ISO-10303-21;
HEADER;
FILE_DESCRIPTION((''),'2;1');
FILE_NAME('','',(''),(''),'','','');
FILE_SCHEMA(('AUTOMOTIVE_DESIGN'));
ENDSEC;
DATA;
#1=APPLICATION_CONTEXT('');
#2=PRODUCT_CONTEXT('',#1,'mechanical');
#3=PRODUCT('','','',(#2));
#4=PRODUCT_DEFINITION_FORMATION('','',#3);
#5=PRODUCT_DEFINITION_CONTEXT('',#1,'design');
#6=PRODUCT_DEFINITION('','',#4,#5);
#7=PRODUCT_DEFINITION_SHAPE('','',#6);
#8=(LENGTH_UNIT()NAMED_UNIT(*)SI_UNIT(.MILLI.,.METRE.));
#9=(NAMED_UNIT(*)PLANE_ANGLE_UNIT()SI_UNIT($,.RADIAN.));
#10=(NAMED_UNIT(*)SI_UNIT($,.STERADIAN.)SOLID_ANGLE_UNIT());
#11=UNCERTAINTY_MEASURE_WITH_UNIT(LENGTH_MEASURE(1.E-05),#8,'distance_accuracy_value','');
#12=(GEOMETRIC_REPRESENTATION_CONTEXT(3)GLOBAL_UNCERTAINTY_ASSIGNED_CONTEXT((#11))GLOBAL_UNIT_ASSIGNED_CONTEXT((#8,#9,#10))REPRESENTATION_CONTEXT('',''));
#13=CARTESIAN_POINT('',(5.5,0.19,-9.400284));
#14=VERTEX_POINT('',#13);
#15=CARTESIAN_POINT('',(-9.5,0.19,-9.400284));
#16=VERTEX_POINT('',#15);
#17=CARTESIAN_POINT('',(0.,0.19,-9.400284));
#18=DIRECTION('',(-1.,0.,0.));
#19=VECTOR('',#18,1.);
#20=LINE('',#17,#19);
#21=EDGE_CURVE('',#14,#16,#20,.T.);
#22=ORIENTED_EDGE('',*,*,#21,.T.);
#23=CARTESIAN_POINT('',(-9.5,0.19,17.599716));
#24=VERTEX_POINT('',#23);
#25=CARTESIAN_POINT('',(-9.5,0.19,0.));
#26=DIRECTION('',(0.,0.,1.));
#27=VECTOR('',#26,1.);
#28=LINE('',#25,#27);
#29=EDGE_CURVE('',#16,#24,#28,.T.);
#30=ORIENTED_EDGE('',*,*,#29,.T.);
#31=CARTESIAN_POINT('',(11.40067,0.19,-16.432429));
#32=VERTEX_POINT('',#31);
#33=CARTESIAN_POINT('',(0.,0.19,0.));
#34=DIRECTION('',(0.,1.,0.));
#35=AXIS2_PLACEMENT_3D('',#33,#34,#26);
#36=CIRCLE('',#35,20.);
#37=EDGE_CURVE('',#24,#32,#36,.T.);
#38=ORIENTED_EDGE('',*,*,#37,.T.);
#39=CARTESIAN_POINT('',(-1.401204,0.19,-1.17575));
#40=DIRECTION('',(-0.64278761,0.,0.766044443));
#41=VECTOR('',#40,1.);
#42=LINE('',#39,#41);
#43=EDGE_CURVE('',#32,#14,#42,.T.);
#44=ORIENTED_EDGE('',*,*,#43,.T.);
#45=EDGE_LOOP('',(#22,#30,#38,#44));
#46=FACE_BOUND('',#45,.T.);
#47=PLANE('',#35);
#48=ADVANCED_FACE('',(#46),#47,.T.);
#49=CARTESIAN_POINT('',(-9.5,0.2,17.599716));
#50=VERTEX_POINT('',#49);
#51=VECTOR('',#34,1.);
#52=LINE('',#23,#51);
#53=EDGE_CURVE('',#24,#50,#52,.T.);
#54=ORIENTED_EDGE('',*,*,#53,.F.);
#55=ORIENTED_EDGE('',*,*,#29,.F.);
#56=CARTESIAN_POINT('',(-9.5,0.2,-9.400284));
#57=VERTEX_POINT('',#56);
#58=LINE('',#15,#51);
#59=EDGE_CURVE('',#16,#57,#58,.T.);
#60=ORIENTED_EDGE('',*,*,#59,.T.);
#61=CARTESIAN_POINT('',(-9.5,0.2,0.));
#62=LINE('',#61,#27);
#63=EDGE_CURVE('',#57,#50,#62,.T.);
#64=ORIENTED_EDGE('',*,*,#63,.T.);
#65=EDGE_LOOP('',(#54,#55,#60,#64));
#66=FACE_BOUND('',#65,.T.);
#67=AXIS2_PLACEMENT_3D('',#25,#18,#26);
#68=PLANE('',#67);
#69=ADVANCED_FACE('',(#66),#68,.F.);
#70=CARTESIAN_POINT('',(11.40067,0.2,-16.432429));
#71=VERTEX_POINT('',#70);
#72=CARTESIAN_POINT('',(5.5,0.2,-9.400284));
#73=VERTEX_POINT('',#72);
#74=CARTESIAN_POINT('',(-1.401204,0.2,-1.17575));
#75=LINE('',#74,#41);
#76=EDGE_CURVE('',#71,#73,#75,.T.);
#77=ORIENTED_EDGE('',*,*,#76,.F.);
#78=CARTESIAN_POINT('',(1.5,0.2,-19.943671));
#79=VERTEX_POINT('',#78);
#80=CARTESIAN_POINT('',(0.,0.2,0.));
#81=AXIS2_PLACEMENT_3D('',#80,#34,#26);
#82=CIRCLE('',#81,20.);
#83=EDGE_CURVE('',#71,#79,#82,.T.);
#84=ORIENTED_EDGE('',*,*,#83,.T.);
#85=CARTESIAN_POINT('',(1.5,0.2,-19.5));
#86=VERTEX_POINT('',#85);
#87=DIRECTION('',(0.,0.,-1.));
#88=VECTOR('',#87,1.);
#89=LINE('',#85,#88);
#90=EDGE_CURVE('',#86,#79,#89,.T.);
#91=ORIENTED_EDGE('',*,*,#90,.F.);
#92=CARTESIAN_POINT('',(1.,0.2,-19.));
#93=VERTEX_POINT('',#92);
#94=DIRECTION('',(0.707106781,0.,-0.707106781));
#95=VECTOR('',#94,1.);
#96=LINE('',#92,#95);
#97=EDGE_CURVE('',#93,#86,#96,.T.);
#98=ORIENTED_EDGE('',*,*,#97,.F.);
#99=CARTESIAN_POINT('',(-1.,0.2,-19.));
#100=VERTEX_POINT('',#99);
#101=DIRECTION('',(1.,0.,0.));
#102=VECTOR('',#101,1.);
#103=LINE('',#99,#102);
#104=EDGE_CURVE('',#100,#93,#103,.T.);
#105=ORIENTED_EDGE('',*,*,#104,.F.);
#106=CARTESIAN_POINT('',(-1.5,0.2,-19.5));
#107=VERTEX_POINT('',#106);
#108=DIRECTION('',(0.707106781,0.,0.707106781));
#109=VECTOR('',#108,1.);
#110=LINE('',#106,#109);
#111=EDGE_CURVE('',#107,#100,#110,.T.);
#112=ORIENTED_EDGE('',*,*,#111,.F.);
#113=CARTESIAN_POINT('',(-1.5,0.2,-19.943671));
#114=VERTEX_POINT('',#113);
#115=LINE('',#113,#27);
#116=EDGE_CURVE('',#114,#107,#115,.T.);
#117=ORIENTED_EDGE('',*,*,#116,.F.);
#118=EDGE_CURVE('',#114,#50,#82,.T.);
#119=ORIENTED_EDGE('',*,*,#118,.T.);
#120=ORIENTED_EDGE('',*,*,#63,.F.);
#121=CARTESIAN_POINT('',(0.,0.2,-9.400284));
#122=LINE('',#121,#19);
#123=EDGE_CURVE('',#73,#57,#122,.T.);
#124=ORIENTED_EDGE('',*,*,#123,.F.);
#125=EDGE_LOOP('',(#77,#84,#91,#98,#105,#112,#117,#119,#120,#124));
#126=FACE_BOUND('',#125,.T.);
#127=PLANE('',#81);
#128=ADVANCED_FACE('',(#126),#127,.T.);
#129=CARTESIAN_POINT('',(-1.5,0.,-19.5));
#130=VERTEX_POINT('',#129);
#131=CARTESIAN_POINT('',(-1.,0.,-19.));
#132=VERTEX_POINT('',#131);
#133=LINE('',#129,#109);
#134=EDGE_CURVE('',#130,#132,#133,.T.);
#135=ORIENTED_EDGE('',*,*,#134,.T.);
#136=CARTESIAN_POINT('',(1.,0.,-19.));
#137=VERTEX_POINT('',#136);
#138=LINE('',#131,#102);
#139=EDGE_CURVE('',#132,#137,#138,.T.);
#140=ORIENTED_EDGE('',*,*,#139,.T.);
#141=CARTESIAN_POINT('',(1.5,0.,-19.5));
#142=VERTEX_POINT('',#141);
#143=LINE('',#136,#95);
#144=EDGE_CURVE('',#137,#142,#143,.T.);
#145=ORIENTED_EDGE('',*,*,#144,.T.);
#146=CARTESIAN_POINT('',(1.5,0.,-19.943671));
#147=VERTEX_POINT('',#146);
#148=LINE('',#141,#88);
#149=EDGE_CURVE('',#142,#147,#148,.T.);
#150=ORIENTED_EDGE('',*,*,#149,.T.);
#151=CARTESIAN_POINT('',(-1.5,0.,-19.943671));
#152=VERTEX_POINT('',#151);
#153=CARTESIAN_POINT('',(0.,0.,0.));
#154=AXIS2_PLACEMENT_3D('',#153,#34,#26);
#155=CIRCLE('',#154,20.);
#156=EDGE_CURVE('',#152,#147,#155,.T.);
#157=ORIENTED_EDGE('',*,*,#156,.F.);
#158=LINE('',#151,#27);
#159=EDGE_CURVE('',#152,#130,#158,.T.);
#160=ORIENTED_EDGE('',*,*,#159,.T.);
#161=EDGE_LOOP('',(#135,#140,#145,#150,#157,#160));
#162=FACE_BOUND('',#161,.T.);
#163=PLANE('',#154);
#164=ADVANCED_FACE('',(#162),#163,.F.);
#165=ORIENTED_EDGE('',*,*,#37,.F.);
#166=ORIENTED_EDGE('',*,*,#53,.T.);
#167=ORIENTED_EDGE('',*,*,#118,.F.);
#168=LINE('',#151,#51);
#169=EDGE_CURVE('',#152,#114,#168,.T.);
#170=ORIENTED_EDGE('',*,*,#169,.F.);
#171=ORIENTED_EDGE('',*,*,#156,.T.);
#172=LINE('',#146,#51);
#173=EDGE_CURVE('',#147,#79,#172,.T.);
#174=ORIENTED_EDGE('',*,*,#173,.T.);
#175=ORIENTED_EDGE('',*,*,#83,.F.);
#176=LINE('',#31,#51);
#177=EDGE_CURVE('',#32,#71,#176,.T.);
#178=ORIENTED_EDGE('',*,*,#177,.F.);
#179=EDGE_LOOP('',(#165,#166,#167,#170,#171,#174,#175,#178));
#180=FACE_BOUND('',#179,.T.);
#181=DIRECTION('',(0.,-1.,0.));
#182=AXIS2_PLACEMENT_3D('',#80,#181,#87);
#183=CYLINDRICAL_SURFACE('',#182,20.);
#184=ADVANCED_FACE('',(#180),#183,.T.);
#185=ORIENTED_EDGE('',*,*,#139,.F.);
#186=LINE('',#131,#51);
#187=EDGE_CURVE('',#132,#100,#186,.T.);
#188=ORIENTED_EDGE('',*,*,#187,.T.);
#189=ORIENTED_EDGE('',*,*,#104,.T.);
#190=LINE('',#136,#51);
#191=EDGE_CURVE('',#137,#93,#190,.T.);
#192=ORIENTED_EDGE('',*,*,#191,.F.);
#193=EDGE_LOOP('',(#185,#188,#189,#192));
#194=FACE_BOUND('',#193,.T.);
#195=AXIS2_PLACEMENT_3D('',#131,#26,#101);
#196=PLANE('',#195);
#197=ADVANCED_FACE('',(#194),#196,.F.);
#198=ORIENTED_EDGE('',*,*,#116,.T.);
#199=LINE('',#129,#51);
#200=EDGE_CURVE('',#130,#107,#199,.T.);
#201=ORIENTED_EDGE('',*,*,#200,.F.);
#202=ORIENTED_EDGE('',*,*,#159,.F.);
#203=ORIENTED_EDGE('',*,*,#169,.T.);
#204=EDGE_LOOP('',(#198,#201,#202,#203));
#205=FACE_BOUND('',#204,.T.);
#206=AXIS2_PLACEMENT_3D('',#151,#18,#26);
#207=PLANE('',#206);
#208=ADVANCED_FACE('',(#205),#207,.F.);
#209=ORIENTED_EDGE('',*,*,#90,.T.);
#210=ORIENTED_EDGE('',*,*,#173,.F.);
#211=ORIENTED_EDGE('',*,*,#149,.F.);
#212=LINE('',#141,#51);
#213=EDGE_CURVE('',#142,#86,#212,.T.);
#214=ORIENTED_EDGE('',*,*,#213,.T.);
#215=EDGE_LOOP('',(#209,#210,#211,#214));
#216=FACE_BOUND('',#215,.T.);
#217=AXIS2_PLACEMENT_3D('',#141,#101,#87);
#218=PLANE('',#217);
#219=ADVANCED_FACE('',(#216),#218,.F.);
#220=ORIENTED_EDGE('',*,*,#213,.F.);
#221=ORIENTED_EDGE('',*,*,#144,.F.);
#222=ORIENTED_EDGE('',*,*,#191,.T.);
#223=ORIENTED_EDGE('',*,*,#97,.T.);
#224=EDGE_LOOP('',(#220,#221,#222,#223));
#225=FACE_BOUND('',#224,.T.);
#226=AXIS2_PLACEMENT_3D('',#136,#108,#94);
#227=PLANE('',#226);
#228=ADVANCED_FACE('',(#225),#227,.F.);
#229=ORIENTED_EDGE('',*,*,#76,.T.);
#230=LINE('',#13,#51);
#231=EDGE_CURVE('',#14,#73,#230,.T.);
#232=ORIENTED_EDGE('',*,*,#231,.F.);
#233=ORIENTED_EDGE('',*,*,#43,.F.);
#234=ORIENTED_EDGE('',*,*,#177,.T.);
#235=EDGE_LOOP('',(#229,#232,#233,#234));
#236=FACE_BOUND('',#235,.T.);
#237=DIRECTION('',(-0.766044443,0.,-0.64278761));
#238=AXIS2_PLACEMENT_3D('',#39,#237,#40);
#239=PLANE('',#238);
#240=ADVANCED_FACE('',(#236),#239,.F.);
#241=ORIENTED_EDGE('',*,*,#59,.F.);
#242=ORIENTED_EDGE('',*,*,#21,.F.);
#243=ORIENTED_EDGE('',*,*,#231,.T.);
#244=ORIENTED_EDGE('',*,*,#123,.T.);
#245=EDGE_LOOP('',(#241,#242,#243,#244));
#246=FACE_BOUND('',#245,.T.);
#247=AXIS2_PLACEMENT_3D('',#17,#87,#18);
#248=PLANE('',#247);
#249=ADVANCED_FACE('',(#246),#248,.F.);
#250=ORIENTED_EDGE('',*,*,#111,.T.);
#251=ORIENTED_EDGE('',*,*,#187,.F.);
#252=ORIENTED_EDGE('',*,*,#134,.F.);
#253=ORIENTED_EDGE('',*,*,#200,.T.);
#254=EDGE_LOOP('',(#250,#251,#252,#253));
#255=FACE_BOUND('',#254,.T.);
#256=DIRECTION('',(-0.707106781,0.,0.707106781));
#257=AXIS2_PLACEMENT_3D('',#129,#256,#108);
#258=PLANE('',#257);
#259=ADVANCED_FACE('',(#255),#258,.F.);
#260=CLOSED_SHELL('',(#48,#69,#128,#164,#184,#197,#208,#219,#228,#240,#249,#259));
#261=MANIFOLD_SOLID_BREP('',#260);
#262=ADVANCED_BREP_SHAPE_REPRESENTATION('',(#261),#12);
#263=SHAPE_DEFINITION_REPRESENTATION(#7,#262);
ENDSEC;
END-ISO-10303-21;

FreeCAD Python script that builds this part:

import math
import FreeCAD as App
import Part
import Sketcher

V = App.Vector
Q = App.Units.Quantity

doc = App.newDocument("Part")
body = doc.addObject("PartDesign::Body", "Body")

sketch1 = body.newObject("Sketcher::SketchObject", "Sketch")
sketch1.AttachmentSupport = (doc.getObject("XZ_Plane"), [""])
sketch1.MapMode = "FlatFace"
sketch1.addGeometry(Part.Circle(V(0, 0, 0), V(0, 0, 1), 20), False)
sketch1.addConstraint(Sketcher.Constraint("Coincident", 0, 3, -1, 1))
sketch1.addConstraint(Sketcher.Constraint("Diameter", 0, Q("40 mm")))
pad1 = body.newObject("PartDesign::Pad", "Pad")
pad1.Profile = sketch1
pad1.Length = 0.2
pad1.Reversed = True

sketch2 = body.newObject("Sketcher::SketchObject", "Sketch001")
sketch2.AttachmentSupport = (doc.getObject("XZ_Plane"), [""])
sketch2.MapMode = "FlatFace"
sketch2.AttachmentOffset = App.Placement(V(0, 0, -0.2), App.Rotation())
sketch2.addGeometry(Part.LineSegment(V(1.5, -19.5, 0), V(1.5, -19.943671, 0)), False)
sketch2.addGeometry(Part.ArcOfCircle(Part.Circle(V(0, 0, 0), V(0, 0, 1), 20), math.radians(-94.301222), math.radians(-85.698778)), False)
sketch2.addGeometry(Part.LineSegment(V(-1.5, -19.943671, 0), V(-1.5, -19.5, 0)), False)
sketch2.addGeometry(Part.LineSegment(V(-1.5, -19.5, 0), V(-1, -19, 0)), False)
sketch2.addGeometry(Part.LineSegment(V(-1, -19, 0), V(1, -19, 0)), False)
sketch2.addGeometry(Part.LineSegment(V(1, -19, 0), V(1.5, -19.5, 0)), False)
sketch2.addConstraint(Sketcher.Constraint("Coincident", 0, 2, 1, 2))
sketch2.addConstraint(Sketcher.Constraint("Coincident", 1, 1, 2, 1))
sketch2.addConstraint(Sketcher.Constraint("Coincident", 2, 2, 3, 1))
sketch2.addConstraint(Sketcher.Constraint("Coincident", 3, 2, 4, 1))
sketch2.addConstraint(Sketcher.Constraint("Coincident", 4, 2, 5, 1))
sketch2.addConstraint(Sketcher.Constraint("Coincident", 5, 2, 0, 1))
sketch2.addConstraint(Sketcher.Constraint("Vertical", 0))
sketch2.addConstraint(Sketcher.Constraint("Vertical", 2))
sketch2.addConstraint(Sketcher.Constraint("Horizontal", 4))
sketch2.addConstraint(Sketcher.Constraint("Coincident", 1, 3, -1, 1))
sketch2.addConstraint(Sketcher.Constraint("Symmetric", 2, 2, 5, 2, -2))
sketch2.addConstraint(Sketcher.Constraint("Perpendicular", 3, 5))
sketch2.addConstraint(Sketcher.Constraint("Equal", 3, 5))
sketch2.addConstraint(Sketcher.Constraint("Radius", 1, Q("20 mm")))
sketch2.addConstraint(Sketcher.Constraint("DistanceX", 4, 1, 4, 2, Q("2 mm")))
sketch2.addConstraint(Sketcher.Constraint("DistanceY", 3, 2, -1, 1, Q("19 mm")))
sketch2.addConstraint(Sketcher.Constraint("DistanceX", 1, 1, 0, 2, Q("3 mm")))
pocket1 = body.newObject("PartDesign::Pocket", "Pocket")
pocket1.Profile = sketch2
pocket1.Type = "ThroughAll"
pocket1.Reversed = True

sketch3 = body.newObject("Sketcher::SketchObject", "Sketch002")
sketch3.AttachmentSupport = (doc.getObject("XZ_Plane"), [""])
sketch3.MapMode = "FlatFace"
sketch3.AttachmentOffset = App.Placement(V(0, 0, -0.19), App.Rotation())
sketch3.addGeometry(Part.ArcOfCircle(Part.Circle(V(0, 0, 0), V(0, 0, 1), 20), math.radians(-55.247438), math.radians(118.35935)), False)
sketch3.addGeometry(Part.LineSegment(V(11.40067, -16.432429, 0), V(5.5, -9.400284, 0)), False)
sketch3.addGeometry(Part.LineSegment(V(5.5, -9.400284, 0), V(-9.5, -9.400284, 0)), False)
sketch3.addGeometry(Part.LineSegment(V(-9.5, -9.400284, 0), V(-9.5, 17.599716, 0)), False)
sketch3.addConstraint(Sketcher.Constraint("Coincident", 0, 1, 1, 1))
sketch3.addConstraint(Sketcher.Constraint("Coincident", 1, 2, 2, 1))
sketch3.addConstraint(Sketcher.Constraint("Coincident", 2, 2, 3, 1))
sketch3.addConstraint(Sketcher.Constraint("Coincident", 3, 2, 0, 2))
sketch3.addConstraint(Sketcher.Constraint("Horizontal", 2))
sketch3.addConstraint(Sketcher.Constraint("Vertical", 3))
sketch3.addConstraint(Sketcher.Constraint("Coincident", 0, 3, -1, 1))
sketch3.addConstraint(Sketcher.Constraint("Radius", 0, Q("20 mm")))
sketch3.addConstraint(Sketcher.Constraint("DistanceX", 2, 2, 2, 1, Q("15 mm")))
sketch3.addConstraint(Sketcher.Constraint("DistanceY", 3, 1, 3, 2, Q("27 mm")))
sketch3.addConstraint(Sketcher.Constraint("Angle", 1, Q("130 deg")))
sketch3.addConstraint(Sketcher.Constraint("DistanceX", -1, 1, 1, 2, Q("5.5 mm")))
pocket2 = body.newObject("PartDesign::Pocket", "Pocket001")
pocket2.Profile = sketch3
pocket2.Length = 0.01

doc.recompute()
